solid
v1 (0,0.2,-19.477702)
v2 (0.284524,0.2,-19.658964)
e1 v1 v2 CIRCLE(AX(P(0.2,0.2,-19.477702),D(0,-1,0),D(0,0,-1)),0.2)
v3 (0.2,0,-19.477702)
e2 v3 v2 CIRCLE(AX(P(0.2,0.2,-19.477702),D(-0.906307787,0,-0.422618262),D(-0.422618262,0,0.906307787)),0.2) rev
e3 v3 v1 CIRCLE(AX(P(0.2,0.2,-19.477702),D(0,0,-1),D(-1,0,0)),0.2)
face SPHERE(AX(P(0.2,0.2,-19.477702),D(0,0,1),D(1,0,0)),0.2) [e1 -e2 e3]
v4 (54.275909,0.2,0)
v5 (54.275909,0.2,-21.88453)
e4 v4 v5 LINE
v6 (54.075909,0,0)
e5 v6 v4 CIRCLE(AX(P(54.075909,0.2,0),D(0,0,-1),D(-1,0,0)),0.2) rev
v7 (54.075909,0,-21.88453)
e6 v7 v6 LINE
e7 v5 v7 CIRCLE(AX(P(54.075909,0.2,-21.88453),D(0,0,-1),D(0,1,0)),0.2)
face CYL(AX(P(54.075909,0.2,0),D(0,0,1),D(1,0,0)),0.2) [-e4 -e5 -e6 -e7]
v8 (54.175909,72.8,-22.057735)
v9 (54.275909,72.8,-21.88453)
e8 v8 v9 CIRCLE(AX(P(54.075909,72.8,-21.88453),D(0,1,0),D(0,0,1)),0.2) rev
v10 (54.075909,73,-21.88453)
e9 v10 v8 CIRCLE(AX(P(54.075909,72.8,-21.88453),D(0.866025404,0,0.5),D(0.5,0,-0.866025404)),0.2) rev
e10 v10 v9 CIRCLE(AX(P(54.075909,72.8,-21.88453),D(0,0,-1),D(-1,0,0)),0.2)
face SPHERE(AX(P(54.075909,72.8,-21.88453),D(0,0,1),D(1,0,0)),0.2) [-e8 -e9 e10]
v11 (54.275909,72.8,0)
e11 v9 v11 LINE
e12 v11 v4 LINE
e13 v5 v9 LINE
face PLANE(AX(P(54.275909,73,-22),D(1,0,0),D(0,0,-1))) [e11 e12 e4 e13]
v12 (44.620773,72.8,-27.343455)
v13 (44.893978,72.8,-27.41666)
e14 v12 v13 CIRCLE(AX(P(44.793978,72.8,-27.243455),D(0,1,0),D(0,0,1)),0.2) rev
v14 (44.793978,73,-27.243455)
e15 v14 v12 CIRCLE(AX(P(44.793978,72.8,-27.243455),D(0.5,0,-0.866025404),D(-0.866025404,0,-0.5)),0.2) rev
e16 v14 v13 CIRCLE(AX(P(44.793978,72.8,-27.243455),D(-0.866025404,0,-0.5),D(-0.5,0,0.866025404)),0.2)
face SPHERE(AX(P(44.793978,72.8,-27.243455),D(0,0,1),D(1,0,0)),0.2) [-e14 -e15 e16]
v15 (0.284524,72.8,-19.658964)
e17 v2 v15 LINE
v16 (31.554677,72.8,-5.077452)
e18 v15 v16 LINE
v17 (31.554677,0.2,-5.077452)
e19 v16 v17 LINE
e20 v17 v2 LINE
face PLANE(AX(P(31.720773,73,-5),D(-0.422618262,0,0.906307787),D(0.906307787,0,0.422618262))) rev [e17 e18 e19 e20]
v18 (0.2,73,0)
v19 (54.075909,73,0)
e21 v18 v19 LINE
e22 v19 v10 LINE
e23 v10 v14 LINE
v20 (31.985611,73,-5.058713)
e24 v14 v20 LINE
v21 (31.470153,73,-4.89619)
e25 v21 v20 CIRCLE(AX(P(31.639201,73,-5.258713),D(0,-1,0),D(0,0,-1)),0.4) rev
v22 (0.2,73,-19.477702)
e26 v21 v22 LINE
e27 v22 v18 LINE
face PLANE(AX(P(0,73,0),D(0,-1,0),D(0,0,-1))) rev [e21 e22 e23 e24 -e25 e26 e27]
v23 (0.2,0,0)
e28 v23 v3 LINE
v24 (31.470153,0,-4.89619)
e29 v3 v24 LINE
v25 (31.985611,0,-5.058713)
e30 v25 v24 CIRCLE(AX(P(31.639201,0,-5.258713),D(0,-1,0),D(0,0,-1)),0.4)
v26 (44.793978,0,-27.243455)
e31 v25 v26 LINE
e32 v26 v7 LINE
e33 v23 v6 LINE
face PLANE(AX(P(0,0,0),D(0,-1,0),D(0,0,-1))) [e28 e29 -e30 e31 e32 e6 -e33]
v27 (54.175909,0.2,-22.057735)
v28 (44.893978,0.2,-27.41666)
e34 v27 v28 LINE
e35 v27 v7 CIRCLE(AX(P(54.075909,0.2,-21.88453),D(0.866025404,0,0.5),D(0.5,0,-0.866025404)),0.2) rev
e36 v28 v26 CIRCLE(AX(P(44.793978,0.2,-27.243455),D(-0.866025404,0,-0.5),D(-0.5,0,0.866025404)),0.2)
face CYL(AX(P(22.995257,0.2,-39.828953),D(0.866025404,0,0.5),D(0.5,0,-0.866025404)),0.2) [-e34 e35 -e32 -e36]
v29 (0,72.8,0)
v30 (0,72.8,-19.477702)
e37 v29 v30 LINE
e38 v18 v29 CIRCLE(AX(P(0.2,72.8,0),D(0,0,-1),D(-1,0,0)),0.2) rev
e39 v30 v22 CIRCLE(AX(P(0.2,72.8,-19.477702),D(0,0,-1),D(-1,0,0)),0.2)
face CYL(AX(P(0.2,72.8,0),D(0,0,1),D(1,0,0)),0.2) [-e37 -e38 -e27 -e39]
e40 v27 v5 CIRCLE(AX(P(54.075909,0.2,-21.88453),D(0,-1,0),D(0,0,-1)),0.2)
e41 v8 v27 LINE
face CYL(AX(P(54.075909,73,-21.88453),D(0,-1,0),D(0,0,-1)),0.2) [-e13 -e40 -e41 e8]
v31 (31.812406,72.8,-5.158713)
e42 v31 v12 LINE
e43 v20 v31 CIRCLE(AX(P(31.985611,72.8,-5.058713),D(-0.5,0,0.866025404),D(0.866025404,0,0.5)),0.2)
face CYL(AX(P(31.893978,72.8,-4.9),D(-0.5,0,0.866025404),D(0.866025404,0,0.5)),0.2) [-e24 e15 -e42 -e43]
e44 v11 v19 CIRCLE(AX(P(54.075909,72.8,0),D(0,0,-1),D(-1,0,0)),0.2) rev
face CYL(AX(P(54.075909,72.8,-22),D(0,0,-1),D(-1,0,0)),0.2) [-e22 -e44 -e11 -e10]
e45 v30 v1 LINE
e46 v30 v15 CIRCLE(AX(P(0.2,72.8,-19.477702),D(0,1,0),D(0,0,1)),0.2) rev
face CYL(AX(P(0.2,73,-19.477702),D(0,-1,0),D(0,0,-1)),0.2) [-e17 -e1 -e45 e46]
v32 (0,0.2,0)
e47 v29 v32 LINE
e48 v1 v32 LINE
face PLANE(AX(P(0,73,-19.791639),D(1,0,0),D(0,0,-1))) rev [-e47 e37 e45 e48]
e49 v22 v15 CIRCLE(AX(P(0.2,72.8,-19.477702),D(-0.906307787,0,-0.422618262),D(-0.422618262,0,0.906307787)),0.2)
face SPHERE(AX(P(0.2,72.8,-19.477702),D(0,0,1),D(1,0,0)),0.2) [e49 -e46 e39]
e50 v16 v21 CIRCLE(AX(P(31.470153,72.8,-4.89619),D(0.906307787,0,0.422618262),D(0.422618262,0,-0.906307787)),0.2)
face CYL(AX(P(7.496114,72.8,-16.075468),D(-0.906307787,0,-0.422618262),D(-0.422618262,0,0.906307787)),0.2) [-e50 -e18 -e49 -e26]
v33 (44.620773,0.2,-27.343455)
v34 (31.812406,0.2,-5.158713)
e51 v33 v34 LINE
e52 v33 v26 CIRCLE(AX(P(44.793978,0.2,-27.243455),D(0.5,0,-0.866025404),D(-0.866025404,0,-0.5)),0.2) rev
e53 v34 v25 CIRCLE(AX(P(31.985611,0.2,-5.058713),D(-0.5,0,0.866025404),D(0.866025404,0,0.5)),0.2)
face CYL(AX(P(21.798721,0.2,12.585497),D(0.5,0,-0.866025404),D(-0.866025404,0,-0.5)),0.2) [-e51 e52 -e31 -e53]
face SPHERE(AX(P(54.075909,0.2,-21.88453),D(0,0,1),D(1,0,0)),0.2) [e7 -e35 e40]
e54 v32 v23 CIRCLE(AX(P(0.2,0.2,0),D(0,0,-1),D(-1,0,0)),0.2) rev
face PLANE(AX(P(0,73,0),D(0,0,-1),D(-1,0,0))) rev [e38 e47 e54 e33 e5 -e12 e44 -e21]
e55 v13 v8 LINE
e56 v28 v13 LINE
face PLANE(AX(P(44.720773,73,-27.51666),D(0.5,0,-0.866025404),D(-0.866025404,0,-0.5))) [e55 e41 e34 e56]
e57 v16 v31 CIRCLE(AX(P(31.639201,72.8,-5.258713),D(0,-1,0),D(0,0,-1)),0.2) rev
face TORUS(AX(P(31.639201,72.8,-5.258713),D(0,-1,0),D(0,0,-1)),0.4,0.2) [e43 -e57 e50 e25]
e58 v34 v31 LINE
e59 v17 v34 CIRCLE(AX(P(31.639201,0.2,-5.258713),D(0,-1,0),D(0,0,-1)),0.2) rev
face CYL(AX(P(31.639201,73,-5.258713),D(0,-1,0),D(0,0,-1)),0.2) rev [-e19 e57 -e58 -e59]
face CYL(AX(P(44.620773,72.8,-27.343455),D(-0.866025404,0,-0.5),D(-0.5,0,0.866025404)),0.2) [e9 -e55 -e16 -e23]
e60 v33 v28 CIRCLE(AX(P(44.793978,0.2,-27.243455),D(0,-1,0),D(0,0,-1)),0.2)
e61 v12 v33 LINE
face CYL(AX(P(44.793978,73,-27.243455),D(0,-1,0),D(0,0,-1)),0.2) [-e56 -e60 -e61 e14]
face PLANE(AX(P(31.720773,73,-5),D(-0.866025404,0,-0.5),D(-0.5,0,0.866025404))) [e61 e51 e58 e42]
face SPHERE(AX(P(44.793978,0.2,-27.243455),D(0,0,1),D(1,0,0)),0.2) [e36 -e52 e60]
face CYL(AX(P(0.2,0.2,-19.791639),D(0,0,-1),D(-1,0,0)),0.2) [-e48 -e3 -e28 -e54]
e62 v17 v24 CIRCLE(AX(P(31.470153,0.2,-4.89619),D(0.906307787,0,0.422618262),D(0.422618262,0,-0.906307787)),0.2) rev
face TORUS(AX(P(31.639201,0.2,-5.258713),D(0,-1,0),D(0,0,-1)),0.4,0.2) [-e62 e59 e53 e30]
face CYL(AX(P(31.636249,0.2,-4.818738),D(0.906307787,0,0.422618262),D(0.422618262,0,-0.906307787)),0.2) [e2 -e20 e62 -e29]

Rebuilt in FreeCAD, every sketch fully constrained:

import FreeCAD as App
import Part
import Sketcher
from FreeCAD import Vector
Q = App.Units.Quantity


def edges_at(feature, points):
    """Names of the edges that pass closest to the given points."""
    edges = feature.Shape.Edges
    near = lambda p: min(range(len(edges)), key=lambda i: edges[i].distToShape(Part.Vertex(*p))[0])
    return sorted({f"Edge{near(p) + 1}" for p in points})


def add_polygon(sketch, points):
    """Adds a closed chain of lines whose ends are joined by coincident constraints."""
    first, n = sketch.GeometryCount, len(points)
    for a, b in zip(points, points[1:] + points[:1]):
        sketch.addGeometry(Part.LineSegment(App.Vector(*a, 0), App.Vector(*b, 0)), False)
    for i in range(n):
        sketch.addConstraint(Sketcher.Constraint("Coincident", first + i, 2, first + (i + 1) % n, 1))

doc = App.newDocument("Part")
body = doc.addObject("PartDesign::Body", "Body")

# Sketch on XZ plane
sketch1 = doc.addObject("Sketcher::SketchObject", "Sketch")
body.addObject(sketch1)
sketch1.AttachmentSupport = (doc.XZ_Plane, [""])
sketch1.MapMode = "FlatFace"
add_polygon(sketch1, [(0, 0), (54.275909, 0), (54.275909, -22), (44.720773, -27.51666), (31.720773, -5), (0, -19.791639)])  # lines 0-5
sketch1.addConstraint(Sketcher.Constraint("Horizontal", 0))
sketch1.addConstraint(Sketcher.Constraint("Vertical", 1))
sketch1.addConstraint(Sketcher.Constraint("Vertical", 5))
sketch1.addConstraint(Sketcher.Constraint("Coincident", 5, 2, -1, 1))
sketch1.addConstraint(Sketcher.Constraint("Perpendicular", 2, 3))
sketch1.addConstraint(Sketcher.Constraint("DistanceY", 1, 2, 1, 1, Q("22 mm")))
sketch1.addConstraint(Sketcher.Constraint("Angle", 2, Q("-150 deg")))
sketch1.addConstraint(Sketcher.Constraint("Angle", 4, Q("-155 deg")))
sketch1.addConstraint(Sketcher.Constraint("Distance", 3, Q("26 mm")))
sketch1.addConstraint(Sketcher.Constraint("Distance", 4, Q("35 mm")))
sketch1.addConstraint(Sketcher.Constraint("DistanceY", 3, 2, -1, 1, Q("5 mm")))
pad1 = doc.addObject("PartDesign::Pad", "Pad")
body.addObject(pad1)
pad1.Profile = sketch1
pad1.Length = 73
pad1.Reversed = True
doc.recompute()

fillet = doc.addObject("PartDesign::Fillet", "Fillet")
body.addObject(fillet)
fillet.Base = (pad1, edges_at(pad1, [
    (31.721, 36.5, -5),
    (44.721, 36.5, -27.517),
    (54.276, 36.5, -22),
    (0, 36.5, -19.792),
    (54.276, 73, -11),
    (49.498, 73, -24.758),
    (38.221, 73, -16.258),
    (15.86, 73, -12.396),
    (38.221, 0, -16.258),
    (49.498, 0, -24.758),
    (54.276, 0, -11),
    (0, 73, -9.896),
    (0, 0, -9.896),
    (15.86, 0, -12.396),
]))
fillet.Radius = 0.2

doc.recompute()
